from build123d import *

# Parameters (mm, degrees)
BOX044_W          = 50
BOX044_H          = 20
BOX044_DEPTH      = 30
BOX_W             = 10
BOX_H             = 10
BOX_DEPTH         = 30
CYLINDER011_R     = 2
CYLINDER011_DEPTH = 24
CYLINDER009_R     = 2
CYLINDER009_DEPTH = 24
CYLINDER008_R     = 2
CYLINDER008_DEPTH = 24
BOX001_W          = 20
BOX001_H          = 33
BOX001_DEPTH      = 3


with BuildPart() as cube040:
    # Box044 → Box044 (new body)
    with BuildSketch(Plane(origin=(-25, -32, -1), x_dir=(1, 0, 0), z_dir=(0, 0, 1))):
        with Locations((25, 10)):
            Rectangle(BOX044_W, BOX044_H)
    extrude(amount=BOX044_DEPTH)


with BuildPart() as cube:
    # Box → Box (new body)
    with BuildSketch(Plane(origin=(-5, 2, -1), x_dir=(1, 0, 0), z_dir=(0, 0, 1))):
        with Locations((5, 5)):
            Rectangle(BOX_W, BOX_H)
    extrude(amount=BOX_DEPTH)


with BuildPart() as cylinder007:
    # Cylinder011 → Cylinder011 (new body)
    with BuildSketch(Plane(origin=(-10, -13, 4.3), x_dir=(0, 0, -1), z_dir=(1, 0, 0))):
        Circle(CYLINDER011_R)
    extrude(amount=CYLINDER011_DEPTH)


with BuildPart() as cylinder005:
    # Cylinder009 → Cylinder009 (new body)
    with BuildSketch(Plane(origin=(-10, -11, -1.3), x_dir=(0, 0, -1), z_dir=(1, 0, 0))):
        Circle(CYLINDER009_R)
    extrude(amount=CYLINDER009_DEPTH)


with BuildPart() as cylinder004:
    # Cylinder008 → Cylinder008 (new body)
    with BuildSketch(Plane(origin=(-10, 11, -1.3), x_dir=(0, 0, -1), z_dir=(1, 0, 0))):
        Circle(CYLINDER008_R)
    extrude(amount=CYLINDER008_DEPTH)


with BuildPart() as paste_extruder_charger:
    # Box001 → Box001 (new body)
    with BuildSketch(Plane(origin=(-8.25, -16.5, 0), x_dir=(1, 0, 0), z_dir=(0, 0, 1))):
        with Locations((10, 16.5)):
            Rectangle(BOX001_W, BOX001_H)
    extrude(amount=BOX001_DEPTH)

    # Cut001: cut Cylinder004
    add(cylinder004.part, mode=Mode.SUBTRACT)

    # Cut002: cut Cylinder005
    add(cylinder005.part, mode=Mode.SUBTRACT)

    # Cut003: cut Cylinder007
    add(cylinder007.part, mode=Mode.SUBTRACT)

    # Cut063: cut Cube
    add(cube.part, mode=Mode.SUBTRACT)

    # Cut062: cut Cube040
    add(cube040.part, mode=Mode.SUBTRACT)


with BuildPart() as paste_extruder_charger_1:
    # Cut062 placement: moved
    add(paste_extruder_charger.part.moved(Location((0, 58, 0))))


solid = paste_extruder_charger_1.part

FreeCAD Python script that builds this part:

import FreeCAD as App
import Part
import Sketcher
Q = App.Units.Quantity

doc = App.newDocument("Part")
body = doc.addObject("PartDesign::Body", "Body")

sketch1 = body.newObject("Sketcher::SketchObject", "Sketch")
sketch1.AttachmentSupport = (doc.getObject("XY_Plane"), [""])
sketch1.MapMode = "FlatFace"
sketch1.AttachmentOffset = App.Placement(App.Vector(0, 0, -1), App.Rotation())
sketch1.addGeometry([
    Part.LineSegment(App.Vector(-25, -12, 0), App.Vector(-25, -32, 0)),
    Part.LineSegment(App.Vector(-25, -32, 0), App.Vector(25, -32, 0)),
    Part.LineSegment(App.Vector(25, -32, 0), App.Vector(25, -12, 0)),
    Part.LineSegment(App.Vector(25, -12, 0), App.Vector(-25, -12, 0)),
], False)
sketch1.addConstraint([
    Sketcher.Constraint("Coincident", 0, 2, 1, 1),
    Sketcher.Constraint("Coincident", 1, 2, 2, 1),
    Sketcher.Constraint("Coincident", 2, 2, 3, 1),
    Sketcher.Constraint("Coincident", 3, 2, 0, 1),
    Sketcher.Constraint("Vertical", 0),
    Sketcher.Constraint("Horizontal", 1),
    Sketcher.Constraint("Vertical", 2),
    Sketcher.Constraint("Horizontal", 3),
    Sketcher.Constraint("DistanceX", 1, 1, 1, 2, Q("50 mm")),
    Sketcher.Constraint("DistanceY", 0, 2, 0, 1, Q("20 mm")),
    Sketcher.Constraint("DistanceX", 0, 2, -1, 1, Q("25 mm")),
    Sketcher.Constraint("DistanceY", 0, 2, -1, 1, Q("32 mm")),
])
pad1 = body.newObject("PartDesign::Pad", "Pad")
pad1.Profile = sketch1
pad1.Length = 30
body2 = doc.addObject("PartDesign::Body", "Body001")

sketch2 = body2.newObject("Sketcher::SketchObject", "Sketch001")
sketch2.AttachmentSupport = (doc.getObject("XY_Plane001"), [""])
sketch2.MapMode = "FlatFace"
sketch2.AttachmentOffset = App.Placement(App.Vector(0, 0, -1), App.Rotation())
sketch2.addGeometry([
    Part.LineSegment(App.Vector(-5, 12, 0), App.Vector(-5, 2, 0)),
    Part.LineSegment(App.Vector(-5, 2, 0), App.Vector(5, 2, 0)),
    Part.LineSegment(App.Vector(5, 2, 0), App.Vector(5, 12, 0)),
    Part.LineSegment(App.Vector(5, 12, 0), App.Vector(-5, 12, 0)),
], False)
sketch2.addConstraint([
    Sketcher.Constraint("Coincident", 0, 2, 1, 1),
    Sketcher.Constraint("Coincident", 1, 2, 2, 1),
    Sketcher.Constraint("Coincident", 2, 2, 3, 1),
    Sketcher.Constraint("Coincident", 3, 2, 0, 1),
    Sketcher.Constraint("Vertical", 0),
    Sketcher.Constraint("Horizontal", 1),
    Sketcher.Constraint("Vertical", 2),
    Sketcher.Constraint("Horizontal", 3),
    Sketcher.Constraint("Equal", 3, 0),
    Sketcher.Constraint("DistanceX", 1, 1, 1, 2, Q("10 mm")),
    Sketcher.Constraint("DistanceX", 0, 2, -1, 1, Q("5 mm")),
    Sketcher.Constraint("DistanceY", -1, 1, 0, 2, Q("2 mm")),
])
pad2 = body2.newObject("PartDesign::Pad", "Pad001")
pad2.Profile = sketch2
pad2.Length = 30
body3 = doc.addObject("PartDesign::Body", "Body002")

sketch3 = body3.newObject("Sketcher::SketchObject", "Sketch002")
sketch3.AttachmentSupport = (doc.getObject("YZ_Plane002"), [""])
sketch3.MapMode = "FlatFace"
sketch3.AttachmentOffset = App.Placement(App.Vector(0, 0, -10), App.Rotation())
sketch3.addGeometry(Part.Circle(App.Vector(-13, 4.3, 0), App.Vector(0, 0, 1), 2), False)
sketch3.addConstraint([
    Sketcher.Constraint("Diameter", 0, Q("4 mm")),
    Sketcher.Constraint("DistanceX", 0, 3, -1, 1, Q("13 mm")),
    Sketcher.Constraint("DistanceY", -1, 1, 0, 3, Q("4.3 mm")),
])
pad3 = body3.newObject("PartDesign::Pad", "Pad002")
pad3.Profile = sketch3
pad3.Length = 24
body4 = doc.addObject("PartDesign::Body", "Body003")

sketch4 = body4.newObject("Sketcher::SketchObject", "Sketch003")
sketch4.AttachmentSupport = (doc.getObject("YZ_Plane003"), [""])
sketch4.MapMode = "FlatFace"
sketch4.AttachmentOffset = App.Placement(App.Vector(0, 0, -10), App.Rotation())
sketch4.addGeometry(Part.Circle(App.Vector(-11, -1.3, 0), App.Vector(0, 0, 1), 2), False)
sketch4.addConstraint([
    Sketcher.Constraint("Diameter", 0, Q("4 mm")),
    Sketcher.Constraint("DistanceX", 0, 3, -1, 1, Q("11 mm")),
    Sketcher.Constraint("DistanceY", 0, 3, -1, 1, Q("1.3 mm")),
])
pad4 = body4.newObject("PartDesign::Pad", "Pad003")
pad4.Profile = sketch4
pad4.Length = 24
body5 = doc.addObject("PartDesign::Body", "Body004")

sketch5 = body5.newObject("Sketcher::SketchObject", "Sketch004")
sketch5.AttachmentSupport = (doc.getObject("YZ_Plane004"), [""])
sketch5.MapMode = "FlatFace"
sketch5.AttachmentOffset = App.Placement(App.Vector(0, 0, -10), App.Rotation())
sketch5.addGeometry(Part.Circle(App.Vector(11, -1.3, 0), App.Vector(0, 0, 1), 2), False)
sketch5.addConstraint([
    Sketcher.Constraint("Diameter", 0, Q("4 mm")),
    Sketcher.Constraint("DistanceX", -1, 1, 0, 3, Q("11 mm")),
    Sketcher.Constraint("DistanceY", 0, 3, -1, 1, Q("1.3 mm")),
])
pad5 = body5.newObject("PartDesign::Pad", "Pad004")
pad5.Profile = sketch5
pad5.Length = 24
body6 = doc.addObject("PartDesign::Body", "Body005")

sketch6 = body6.newObject("Sketcher::SketchObject", "Sketch005")
sketch6.AttachmentSupport = (doc.getObject("XY_Plane005"), [""])
sketch6.MapMode = "FlatFace"
sketch6.addGeometry([
    Part.LineSegment(App.Vector(-8, 16, 0), App.Vector(-8, -16, 0)),
    Part.LineSegment(App.Vector(-8, -16, 0), App.Vector(12, -16, 0)),
    Part.LineSegment(App.Vector(12, -16, 0), App.Vector(12, 16, 0)),
    Part.LineSegment(App.Vector(12, 16, 0), App.Vector(-8, 16, 0)),
], False)
sketch6.addConstraint([
    Sketcher.Constraint("Coincident", 0, 2, 1, 1),
    Sketcher.Constraint("Coincident", 1, 2, 2, 1),
    Sketcher.Constraint("Coincident", 2, 2, 3, 1),
    Sketcher.Constraint("Coincident", 3, 2, 0, 1),
    Sketcher.Constraint("Vertical", 0),
    Sketcher.Constraint("Horizontal", 1),
    Sketcher.Constraint("Vertical", 2),
    Sketcher.Constraint("Horizontal", 3),
    Sketcher.Constraint("DistanceX", 1, 1, 1, 2, Q("20 mm")),
    Sketcher.Constraint("DistanceY", 0, 2, 0, 1, Q("33 mm")),
    Sketcher.Constraint("DistanceY", 0, 2, -1, 1, Q("16.5 mm")),
    Sketcher.Constraint("DistanceX", 0, 2, -1, 1, Q("8.25 mm")),
])
pad6 = body6.newObject("PartDesign::Pad", "Pad005")
pad6.Profile = sketch6
pad6.Length = 3
doc.recompute()

boolean = body6.newObject("PartDesign::Boolean", "Boolean")
boolean.Type = "Cut"
boolean.addObjects([body5])
doc.recompute()

boolean2 = body6.newObject("PartDesign::Boolean", "Boolean001")
boolean2.Type = "Cut"
boolean2.addObjects([body4])
doc.recompute()

boolean3 = body6.newObject("PartDesign::Boolean", "Boolean002")
boolean3.Type = "Cut"
boolean3.addObjects([body3])
doc.recompute()

boolean4 = body6.newObject("PartDesign::Boolean", "Boolean003")
boolean4.Type = "Cut"
boolean4.addObjects([body2])
doc.recompute()

boolean5 = body6.newObject("PartDesign::Boolean", "Boolean004")
boolean5.Type = "Cut"
boolean5.addObjects([body])
body7 = doc.addObject("PartDesign::Body", "Body006")
doc.recompute()

body6.Placement = App.Placement(App.Vector(0, 58, 0), App.Rotation(App.Vector(0, 0, 1), 0))
boolean6 = body7.newObject("PartDesign::Boolean", "Boolean005")
boolean6.Type = "Fuse"
boolean6.addObjects([body6])

doc.recompute()
